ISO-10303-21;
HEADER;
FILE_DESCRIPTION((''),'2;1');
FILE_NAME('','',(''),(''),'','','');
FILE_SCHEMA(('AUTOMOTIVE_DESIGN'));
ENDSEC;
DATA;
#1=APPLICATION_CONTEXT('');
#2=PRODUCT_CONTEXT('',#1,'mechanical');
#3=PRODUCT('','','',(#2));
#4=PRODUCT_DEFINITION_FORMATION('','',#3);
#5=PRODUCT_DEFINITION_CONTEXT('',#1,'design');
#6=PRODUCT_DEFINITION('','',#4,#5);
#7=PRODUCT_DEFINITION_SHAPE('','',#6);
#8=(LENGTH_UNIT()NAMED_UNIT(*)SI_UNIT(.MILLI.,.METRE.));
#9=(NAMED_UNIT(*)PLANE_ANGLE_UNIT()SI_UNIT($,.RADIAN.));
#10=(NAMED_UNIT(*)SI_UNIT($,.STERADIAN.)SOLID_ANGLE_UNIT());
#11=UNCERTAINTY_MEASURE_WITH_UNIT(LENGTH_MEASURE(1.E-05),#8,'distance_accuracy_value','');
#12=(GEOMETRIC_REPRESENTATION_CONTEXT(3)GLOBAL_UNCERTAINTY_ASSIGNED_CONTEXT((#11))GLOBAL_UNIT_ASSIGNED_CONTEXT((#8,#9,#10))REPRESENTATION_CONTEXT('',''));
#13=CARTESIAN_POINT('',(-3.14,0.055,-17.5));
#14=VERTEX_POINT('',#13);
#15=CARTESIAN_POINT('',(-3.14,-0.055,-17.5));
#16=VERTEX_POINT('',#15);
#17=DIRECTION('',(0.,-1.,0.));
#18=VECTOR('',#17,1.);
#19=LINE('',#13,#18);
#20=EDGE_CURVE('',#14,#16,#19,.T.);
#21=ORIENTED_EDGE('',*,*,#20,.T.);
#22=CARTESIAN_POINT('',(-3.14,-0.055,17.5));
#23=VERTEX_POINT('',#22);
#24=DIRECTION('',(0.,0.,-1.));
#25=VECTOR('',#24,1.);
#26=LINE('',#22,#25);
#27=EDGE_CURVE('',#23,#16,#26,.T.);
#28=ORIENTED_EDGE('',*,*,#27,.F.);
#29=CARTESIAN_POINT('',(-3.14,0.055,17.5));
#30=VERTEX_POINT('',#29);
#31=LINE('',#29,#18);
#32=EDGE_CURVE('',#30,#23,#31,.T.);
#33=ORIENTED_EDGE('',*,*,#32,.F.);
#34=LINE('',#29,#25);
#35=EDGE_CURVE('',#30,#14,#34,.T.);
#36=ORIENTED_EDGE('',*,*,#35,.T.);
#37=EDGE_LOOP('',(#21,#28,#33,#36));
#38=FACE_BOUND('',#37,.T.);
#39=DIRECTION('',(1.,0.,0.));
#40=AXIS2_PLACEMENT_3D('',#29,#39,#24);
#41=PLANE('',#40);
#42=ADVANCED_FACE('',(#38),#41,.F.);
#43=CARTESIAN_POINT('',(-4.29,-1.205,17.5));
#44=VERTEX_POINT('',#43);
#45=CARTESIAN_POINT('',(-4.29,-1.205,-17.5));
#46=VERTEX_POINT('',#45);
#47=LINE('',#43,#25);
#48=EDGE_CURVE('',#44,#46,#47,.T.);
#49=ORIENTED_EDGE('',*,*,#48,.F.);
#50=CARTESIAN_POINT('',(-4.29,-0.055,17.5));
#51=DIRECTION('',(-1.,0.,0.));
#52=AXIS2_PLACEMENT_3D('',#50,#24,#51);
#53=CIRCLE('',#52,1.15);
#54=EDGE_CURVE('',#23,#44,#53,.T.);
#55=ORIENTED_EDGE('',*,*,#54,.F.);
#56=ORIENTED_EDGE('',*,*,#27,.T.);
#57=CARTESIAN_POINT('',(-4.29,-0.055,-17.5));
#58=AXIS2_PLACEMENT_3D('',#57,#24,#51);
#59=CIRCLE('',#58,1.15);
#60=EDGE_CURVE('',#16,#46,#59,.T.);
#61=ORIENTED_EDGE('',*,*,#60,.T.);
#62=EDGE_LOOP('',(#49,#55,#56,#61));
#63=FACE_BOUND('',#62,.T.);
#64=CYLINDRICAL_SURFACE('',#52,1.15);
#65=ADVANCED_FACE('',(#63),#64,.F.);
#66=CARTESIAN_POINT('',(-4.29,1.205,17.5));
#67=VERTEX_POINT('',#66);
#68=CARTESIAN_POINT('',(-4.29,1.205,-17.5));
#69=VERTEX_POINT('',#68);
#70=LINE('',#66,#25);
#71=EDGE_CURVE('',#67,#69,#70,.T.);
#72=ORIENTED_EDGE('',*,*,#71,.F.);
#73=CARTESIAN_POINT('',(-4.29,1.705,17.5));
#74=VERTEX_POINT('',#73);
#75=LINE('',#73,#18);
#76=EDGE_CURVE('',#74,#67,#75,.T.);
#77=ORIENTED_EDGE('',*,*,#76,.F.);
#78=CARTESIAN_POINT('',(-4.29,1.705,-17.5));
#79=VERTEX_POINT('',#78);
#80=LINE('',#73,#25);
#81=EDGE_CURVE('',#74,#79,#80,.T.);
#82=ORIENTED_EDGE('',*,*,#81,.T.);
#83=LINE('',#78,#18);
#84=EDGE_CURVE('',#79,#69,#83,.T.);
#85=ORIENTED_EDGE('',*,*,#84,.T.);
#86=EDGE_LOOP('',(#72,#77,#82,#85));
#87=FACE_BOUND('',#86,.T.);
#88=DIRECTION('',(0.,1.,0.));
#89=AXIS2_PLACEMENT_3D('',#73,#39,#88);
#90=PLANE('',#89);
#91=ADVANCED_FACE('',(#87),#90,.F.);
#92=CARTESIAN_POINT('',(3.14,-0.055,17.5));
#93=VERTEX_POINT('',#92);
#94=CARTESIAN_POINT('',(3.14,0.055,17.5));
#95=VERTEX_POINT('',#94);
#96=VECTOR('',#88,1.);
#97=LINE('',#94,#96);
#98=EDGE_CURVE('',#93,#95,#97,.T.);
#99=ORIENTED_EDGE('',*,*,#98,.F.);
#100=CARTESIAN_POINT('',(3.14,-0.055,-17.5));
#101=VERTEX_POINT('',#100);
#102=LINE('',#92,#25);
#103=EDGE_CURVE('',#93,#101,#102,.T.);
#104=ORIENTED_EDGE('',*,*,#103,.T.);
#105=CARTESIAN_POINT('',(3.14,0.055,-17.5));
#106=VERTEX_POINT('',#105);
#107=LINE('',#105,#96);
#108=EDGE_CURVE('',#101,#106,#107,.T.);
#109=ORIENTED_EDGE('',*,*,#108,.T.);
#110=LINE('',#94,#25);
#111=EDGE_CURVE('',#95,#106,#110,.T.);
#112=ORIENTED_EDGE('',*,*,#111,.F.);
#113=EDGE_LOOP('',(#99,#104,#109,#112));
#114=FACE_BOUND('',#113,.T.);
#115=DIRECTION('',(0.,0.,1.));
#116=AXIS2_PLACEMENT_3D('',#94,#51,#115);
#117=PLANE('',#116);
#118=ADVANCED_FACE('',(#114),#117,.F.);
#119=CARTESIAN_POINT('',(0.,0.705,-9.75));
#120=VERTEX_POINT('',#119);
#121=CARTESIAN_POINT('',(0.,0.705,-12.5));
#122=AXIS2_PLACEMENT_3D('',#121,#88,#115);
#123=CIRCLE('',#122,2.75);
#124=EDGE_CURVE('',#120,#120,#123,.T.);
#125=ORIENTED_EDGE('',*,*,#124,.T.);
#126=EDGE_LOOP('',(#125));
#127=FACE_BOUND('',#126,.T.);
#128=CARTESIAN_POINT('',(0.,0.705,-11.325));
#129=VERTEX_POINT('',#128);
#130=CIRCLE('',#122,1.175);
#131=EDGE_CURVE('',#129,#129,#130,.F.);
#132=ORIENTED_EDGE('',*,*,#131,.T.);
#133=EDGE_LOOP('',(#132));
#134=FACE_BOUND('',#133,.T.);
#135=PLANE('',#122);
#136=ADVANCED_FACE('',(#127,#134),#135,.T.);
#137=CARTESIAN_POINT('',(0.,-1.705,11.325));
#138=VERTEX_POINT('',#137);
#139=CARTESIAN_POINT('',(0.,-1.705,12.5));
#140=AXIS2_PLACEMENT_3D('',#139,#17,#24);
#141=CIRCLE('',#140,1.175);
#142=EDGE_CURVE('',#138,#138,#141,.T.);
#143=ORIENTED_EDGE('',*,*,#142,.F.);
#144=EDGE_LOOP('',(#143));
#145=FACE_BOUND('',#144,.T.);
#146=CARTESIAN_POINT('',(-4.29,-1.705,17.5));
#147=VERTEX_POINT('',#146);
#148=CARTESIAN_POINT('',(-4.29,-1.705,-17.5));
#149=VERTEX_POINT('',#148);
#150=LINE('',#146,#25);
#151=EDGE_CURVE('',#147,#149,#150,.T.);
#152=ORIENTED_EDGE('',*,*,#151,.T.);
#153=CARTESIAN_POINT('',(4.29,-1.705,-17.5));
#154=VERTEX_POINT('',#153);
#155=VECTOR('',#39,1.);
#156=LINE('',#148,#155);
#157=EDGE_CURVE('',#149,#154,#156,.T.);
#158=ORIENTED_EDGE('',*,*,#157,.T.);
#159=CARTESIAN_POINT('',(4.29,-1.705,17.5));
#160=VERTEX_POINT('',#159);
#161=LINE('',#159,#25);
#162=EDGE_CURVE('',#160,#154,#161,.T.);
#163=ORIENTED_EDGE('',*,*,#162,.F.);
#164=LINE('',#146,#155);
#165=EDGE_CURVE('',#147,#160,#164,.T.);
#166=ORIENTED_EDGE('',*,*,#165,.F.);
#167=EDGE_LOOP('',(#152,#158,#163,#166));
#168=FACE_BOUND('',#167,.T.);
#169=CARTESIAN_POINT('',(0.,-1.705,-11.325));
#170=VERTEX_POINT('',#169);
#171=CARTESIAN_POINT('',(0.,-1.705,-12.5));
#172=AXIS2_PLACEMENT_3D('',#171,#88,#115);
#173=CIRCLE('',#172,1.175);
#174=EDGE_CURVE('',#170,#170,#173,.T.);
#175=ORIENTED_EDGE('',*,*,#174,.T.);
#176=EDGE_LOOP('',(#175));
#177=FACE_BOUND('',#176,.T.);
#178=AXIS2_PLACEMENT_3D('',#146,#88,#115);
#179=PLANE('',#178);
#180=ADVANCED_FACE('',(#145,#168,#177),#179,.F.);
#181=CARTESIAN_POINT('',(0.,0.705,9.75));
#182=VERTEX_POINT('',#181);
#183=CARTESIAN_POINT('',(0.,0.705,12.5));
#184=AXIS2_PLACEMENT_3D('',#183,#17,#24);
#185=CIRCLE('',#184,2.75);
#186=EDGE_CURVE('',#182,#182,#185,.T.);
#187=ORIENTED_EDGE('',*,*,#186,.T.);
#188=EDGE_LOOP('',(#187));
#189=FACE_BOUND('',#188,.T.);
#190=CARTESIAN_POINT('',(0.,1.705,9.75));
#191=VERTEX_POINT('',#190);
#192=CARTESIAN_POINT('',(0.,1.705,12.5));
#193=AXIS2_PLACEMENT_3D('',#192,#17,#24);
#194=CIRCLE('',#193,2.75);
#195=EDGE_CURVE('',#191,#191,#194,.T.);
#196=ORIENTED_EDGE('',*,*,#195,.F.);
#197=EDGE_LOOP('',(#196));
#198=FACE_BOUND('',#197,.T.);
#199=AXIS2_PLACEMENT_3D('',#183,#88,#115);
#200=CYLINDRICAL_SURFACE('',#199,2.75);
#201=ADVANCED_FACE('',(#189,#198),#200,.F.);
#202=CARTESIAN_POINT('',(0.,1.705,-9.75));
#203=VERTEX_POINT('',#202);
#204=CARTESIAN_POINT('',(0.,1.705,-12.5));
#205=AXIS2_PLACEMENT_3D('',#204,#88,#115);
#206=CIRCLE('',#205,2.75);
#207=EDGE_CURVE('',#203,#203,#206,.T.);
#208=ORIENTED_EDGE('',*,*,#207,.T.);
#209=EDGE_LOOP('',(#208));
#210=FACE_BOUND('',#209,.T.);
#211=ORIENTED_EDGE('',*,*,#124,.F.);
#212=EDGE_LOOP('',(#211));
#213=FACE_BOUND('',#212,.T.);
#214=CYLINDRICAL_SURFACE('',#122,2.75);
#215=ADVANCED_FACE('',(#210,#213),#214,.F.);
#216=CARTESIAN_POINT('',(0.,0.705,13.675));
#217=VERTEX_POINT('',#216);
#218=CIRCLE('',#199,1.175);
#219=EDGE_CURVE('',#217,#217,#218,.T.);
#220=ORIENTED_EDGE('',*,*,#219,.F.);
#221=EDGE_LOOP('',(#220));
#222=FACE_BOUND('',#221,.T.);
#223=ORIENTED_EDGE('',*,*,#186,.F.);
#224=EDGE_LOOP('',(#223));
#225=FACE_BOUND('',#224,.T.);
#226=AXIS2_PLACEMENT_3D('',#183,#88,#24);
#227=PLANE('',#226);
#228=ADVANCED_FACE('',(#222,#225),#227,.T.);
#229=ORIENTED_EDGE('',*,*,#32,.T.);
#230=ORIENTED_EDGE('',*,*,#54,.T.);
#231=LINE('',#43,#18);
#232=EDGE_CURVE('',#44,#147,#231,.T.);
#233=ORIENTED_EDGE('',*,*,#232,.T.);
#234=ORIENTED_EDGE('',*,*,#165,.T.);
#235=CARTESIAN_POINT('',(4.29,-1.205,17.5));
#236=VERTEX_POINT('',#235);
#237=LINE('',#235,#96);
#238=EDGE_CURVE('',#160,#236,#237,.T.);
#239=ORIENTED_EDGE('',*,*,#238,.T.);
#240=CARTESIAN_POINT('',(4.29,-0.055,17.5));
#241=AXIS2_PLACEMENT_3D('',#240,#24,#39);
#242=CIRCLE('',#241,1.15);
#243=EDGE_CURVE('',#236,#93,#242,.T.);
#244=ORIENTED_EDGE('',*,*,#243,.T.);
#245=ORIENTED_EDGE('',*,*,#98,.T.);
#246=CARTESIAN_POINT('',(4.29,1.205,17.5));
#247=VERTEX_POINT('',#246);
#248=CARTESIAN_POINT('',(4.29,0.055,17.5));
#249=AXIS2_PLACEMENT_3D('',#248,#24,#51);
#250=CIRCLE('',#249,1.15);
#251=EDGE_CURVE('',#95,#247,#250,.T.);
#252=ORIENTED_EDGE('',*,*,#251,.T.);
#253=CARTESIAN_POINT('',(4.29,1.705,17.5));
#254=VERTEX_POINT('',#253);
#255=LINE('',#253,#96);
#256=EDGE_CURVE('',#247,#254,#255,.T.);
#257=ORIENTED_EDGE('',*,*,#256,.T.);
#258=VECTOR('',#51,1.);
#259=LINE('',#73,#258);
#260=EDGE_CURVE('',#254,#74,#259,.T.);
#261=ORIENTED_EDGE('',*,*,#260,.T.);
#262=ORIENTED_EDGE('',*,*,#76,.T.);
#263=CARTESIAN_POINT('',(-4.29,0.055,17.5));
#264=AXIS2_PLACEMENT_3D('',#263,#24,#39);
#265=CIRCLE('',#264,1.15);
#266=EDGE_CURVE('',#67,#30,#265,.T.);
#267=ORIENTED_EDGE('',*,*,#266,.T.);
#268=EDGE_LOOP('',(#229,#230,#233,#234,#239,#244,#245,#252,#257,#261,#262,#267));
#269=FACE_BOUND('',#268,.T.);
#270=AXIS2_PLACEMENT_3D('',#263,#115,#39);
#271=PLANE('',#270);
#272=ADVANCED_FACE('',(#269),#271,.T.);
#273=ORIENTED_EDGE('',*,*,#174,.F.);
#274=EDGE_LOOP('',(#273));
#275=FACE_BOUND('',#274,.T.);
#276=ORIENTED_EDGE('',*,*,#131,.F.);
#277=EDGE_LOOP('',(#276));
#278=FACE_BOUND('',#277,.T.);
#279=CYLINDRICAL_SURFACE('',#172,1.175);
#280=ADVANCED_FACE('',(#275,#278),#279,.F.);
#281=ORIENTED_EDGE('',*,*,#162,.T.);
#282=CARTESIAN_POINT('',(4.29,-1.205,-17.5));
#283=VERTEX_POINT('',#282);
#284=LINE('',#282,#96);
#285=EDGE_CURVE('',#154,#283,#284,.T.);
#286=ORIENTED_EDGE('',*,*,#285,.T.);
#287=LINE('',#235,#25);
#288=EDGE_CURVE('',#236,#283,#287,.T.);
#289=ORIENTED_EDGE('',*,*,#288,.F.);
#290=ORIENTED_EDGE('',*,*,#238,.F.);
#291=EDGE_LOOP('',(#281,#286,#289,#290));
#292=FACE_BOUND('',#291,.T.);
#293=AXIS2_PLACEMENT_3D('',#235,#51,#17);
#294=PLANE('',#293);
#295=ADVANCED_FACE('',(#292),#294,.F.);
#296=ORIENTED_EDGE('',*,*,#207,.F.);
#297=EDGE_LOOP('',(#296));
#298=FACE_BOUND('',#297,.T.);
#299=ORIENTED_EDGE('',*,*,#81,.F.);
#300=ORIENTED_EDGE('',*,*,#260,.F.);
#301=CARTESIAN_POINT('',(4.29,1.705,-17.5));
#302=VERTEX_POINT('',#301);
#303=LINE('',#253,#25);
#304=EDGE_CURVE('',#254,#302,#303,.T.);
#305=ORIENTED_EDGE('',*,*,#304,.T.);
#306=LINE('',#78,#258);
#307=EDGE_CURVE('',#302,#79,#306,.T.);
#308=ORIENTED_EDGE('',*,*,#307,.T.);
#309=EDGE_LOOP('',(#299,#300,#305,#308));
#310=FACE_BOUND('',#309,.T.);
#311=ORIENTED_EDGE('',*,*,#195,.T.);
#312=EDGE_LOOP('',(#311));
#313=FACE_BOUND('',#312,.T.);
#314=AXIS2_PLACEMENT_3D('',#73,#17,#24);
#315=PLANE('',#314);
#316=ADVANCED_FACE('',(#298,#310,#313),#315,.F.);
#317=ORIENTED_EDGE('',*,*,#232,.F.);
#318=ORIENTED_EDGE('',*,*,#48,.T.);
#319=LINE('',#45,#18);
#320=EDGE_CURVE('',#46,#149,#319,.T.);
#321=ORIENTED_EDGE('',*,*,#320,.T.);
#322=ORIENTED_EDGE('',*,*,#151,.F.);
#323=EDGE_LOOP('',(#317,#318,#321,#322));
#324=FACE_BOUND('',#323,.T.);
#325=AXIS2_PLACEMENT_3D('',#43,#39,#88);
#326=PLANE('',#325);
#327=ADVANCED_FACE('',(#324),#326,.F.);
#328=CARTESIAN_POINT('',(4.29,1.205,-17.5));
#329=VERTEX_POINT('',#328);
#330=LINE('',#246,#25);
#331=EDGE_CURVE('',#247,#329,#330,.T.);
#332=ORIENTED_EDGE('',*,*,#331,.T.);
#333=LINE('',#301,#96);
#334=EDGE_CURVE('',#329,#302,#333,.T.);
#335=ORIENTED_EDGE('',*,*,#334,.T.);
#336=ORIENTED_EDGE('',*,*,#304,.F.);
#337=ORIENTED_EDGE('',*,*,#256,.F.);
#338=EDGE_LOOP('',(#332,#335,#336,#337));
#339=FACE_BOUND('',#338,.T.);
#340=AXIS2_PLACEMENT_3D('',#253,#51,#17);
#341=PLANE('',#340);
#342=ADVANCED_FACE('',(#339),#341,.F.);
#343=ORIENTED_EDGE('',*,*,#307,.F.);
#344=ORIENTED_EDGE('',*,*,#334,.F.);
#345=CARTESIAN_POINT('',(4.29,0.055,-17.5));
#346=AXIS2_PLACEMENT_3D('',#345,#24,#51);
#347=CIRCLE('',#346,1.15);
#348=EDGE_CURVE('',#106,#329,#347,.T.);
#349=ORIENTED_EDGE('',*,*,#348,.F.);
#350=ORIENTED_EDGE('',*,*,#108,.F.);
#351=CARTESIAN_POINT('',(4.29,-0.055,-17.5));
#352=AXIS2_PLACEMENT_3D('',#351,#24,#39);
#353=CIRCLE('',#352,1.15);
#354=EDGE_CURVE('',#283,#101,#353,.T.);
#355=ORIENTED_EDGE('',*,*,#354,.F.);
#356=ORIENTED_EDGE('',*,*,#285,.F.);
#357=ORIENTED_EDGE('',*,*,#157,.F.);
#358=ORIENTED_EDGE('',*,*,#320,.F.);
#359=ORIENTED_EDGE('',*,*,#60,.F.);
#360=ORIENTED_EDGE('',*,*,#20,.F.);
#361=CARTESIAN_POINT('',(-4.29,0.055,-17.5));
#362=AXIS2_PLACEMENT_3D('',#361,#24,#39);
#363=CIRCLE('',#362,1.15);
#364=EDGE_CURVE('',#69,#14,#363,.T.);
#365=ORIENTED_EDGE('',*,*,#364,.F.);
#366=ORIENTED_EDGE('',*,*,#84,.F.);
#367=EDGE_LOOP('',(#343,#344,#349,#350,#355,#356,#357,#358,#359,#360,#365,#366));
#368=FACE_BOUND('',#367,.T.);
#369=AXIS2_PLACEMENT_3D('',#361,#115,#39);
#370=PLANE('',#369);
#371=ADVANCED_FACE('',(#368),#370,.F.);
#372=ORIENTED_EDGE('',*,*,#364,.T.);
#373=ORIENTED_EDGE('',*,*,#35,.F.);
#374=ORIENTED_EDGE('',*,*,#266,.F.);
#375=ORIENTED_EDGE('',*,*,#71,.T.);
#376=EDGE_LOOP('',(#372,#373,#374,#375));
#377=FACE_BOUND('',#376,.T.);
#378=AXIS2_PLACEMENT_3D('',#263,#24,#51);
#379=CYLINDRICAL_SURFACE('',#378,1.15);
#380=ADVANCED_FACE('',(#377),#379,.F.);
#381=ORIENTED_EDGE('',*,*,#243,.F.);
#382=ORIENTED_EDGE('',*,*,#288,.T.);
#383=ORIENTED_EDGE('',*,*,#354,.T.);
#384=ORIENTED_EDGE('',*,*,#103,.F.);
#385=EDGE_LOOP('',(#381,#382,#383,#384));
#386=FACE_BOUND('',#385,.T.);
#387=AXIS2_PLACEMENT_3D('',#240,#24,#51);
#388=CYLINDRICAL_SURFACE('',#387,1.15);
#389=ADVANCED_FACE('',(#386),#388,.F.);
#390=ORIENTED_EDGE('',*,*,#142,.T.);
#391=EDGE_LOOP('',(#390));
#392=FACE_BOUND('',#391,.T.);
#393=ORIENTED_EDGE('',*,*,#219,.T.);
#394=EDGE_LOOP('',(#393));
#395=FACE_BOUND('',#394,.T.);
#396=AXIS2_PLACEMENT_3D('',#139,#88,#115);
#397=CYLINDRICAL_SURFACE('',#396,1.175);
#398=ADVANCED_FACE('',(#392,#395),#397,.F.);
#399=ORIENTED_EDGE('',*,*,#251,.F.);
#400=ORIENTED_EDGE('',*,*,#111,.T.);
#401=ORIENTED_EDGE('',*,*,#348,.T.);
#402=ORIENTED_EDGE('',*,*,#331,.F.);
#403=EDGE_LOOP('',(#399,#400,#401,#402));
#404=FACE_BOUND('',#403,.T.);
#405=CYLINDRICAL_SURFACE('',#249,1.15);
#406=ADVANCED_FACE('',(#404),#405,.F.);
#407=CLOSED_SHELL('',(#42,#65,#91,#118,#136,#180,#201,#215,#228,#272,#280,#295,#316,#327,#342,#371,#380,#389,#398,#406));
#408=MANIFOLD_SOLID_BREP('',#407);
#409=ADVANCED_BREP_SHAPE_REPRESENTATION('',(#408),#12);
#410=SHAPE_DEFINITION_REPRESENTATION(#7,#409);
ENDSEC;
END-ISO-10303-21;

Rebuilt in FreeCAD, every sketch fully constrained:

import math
import FreeCAD as App
import Part
import Sketcher

doc = App.newDocument("Part")
params = doc.addObject("Spreadsheet::Sheet", "Params")
for row, (alias, value) in enumerate([
    ("sketch1_radius", "1.15 mm"),
    ("sketch1_height", "0.5 mm"),
    ("sketch1_width", "8.58 mm"),
    ("sketch1_height2", "0.11 mm"),
    ("pad1_length", "35 mm"),
    ("sketch2_diameter", "2.35 mm"),
    ("sketch3_diameter", "5.5 mm"),
    ("pocket2_length", "1 mm"),
], start=1):
    params.set(f"A{row}", alias)
    params.set(f"B{row}", "=" + value)
    params.setAlias(f"B{row}", alias)

body = doc.addObject("PartDesign::Body", "Body")

sketch1 = body.newObject("Sketcher::SketchObject", "Sketch")
sketch1.AttachmentSupport = (doc.getObject("XY_Plane"), [""])
sketch1.MapMode = "FlatFace"
sketch1.addGeometry(Part.LineSegment(App.Vector(-3.14, 0.06, 0), App.Vector(-3.14, -0.06, 0)), False)
sketch1.addGeometry(Part.ArcOfCircle(Part.Circle(App.Vector(-4.29, -0.05, 0), App.Vector(0, 0, 1), 1.15), math.radians(-90), math.radians(0)), False)
sketch1.addGeometry(Part.LineSegment(App.Vector(-4.29, -1.21, 0), App.Vector(-4.29, -1.71, 0)), False)
sketch1.addGeometry(Part.LineSegment(App.Vector(-4.29, -1.71, 0), App.Vector(4.29, -1.71, 0)), False)
sketch1.addGeometry(Part.LineSegment(App.Vector(4.29, -1.71, 0), App.Vector(4.29, -1.21, 0)), False)
sketch1.addGeometry(Part.ArcOfCircle(Part.Circle(App.Vector(4.29, -0.05, 0), App.Vector(0, 0, 1), 1.15), math.radians(-180), math.radians(-90)), False)
sketch1.addGeometry(Part.LineSegment(App.Vector(3.14, -0.06, 0), App.Vector(3.14, 0.06, 0)), False)
sketch1.addGeometry(Part.ArcOfCircle(Part.Circle(App.Vector(4.29, 0.05, 0), App.Vector(0, 0, 1), 1.15), math.radians(90), math.radians(180)), False)
sketch1.addGeometry(Part.LineSegment(App.Vector(4.29, 1.21, 0), App.Vector(4.29, 1.71, 0)), False)
sketch1.addGeometry(Part.LineSegment(App.Vector(4.29, 1.71, 0), App.Vector(-4.29, 1.71, 0)), False)
sketch1.addGeometry(Part.LineSegment(App.Vector(-4.29, 1.71, 0), App.Vector(-4.29, 1.21, 0)), False)
sketch1.addGeometry(Part.ArcOfCircle(Part.Circle(App.Vector(-4.29, 0.05, 0), App.Vector(0, 0, 1), 1.15), math.radians(0), math.radians(90)), False)
sketch1.addConstraint(Sketcher.Constraint("Tangent", 0, 2, 1, 2))
sketch1.addConstraint(Sketcher.Constraint("Coincident", 1, 1, 2, 1))
sketch1.addConstraint(Sketcher.Constraint("Coincident", 2, 2, 3, 1))
sketch1.addConstraint(Sketcher.Constraint("Coincident", 3, 2, 4, 1))
sketch1.addConstraint(Sketcher.Constraint("Coincident", 4, 2, 5, 2))
sketch1.addConstraint(Sketcher.Constraint("Tangent", 5, 1, 6, 1))
sketch1.addConstraint(Sketcher.Constraint("Tangent", 6, 2, 7, 2))
sketch1.addConstraint(Sketcher.Constraint("Coincident", 7, 1, 8, 1))
sketch1.addConstraint(Sketcher.Constraint("Coincident", 8, 2, 9, 1))
sketch1.addConstraint(Sketcher.Constraint("Coincident", 9, 2, 10, 1))
sketch1.addConstraint(Sketcher.Constraint("Coincident", 10, 2, 11, 2))
sketch1.addConstraint(Sketcher.Constraint("Tangent", 11, 1, 0, 1))
sketch1.addConstraint(Sketcher.Constraint("Vertical", 0))
sketch1.addConstraint(Sketcher.Constraint("Vertical", 2))
sketch1.addConstraint(Sketcher.Constraint("Horizontal", 3))
sketch1.addConstraint(Sketcher.Constraint("Vertical", 4))
sketch1.addConstraint(Sketcher.Constraint("Vertical", 6))
sketch1.addConstraint(Sketcher.Constraint("Vertical", 8))
sketch1.addConstraint(Sketcher.Constraint("Horizontal", 9))
sketch1.addConstraint(Sketcher.Constraint("Vertical", 10))
sketch1.addConstraint(Sketcher.Constraint("Equal", 1, 5))
sketch1.addConstraint(Sketcher.Constraint("Equal", 5, 7))
sketch1.addConstraint(Sketcher.Constraint("Equal", 7, 11))
sketch1.addConstraint(Sketcher.Constraint("Symmetric", 1, 3, 7, 3, -1, 1))
sketch1.addConstraint(Sketcher.Constraint("Symmetric", 2, 2, 8, 2, -1, 1))
sketch1.addConstraint(Sketcher.Constraint("Symmetric", 4, 2, 10, 2, -1, 1))
sketch1.addConstraint(Sketcher.Constraint("Symmetric", 1, 1, 4, 2, -2))
sketch1.addConstraint(Sketcher.Constraint("Vertical", 11, 3, 1, 1))
sketch1.addConstraint(Sketcher.Constraint("Radius", 1, 1.15))
sketch1.addConstraint(Sketcher.Constraint("DistanceY", 2, 2, 2, 1, 0.5))
sketch1.addConstraint(Sketcher.Constraint("DistanceX", 3, 1, 3, 2, 8.58))
sketch1.addConstraint(Sketcher.Constraint("DistanceY", 0, 2, 0, 1, 0.11))
sketch1.setExpression("Constraints[28]", "Params.sketch1_radius")
sketch1.setExpression("Constraints[29]", "Params.sketch1_height")
sketch1.setExpression("Constraints[30]", "Params.sketch1_width")
sketch1.setExpression("Constraints[31]", "Params.sketch1_height2")
pad1 = body.newObject("PartDesign::Pad", "Pad")
pad1.Profile = sketch1
pad1.setExpression("Length", "Params.pad1_length")
pad1.Midplane = True

sketch2 = body.newObject("Sketcher::SketchObject", "Sketch001")
sketch2.AttachmentSupport = (doc.getObject("XZ_Plane"), [""])
sketch2.MapMode = "FlatFace"
sketch2.AttachmentOffset = App.Placement(App.Vector(0, 0, -1.705), App.Rotation())
sketch2.addGeometry(Part.Circle(App.Vector(0, -12.5, 0), App.Vector(0, 0, 1), 1.2), False)
sketch2.addConstraint(Sketcher.Constraint("PointOnObject", 0, 3, -2))
sketch2.addConstraint(Sketcher.Constraint("Diameter", 0, 2.35))
sketch2.addConstraint(Sketcher.Constraint("DistanceY", 0, 3, -1, 1, 12.5))
sketch2.setExpression("Constraints[1]", "Params.sketch2_diameter")
pocket1 = body.newObject("PartDesign::Pocket", "Pocket")
pocket1.Profile = sketch2
pocket1.Type = "ThroughAll"
pocket1.Reversed = True

sketch3 = body.newObject("Sketcher::SketchObject", "Sketch002")
sketch3.AttachmentSupport = (doc.getObject("XZ_Plane"), [""])
sketch3.MapMode = "FlatFace"
sketch3.AttachmentOffset = App.Placement(App.Vector(0, 0, -1.705), App.Rotation())
sketch3.addGeometry(Part.Circle(App.Vector(0, -12.5, 0), App.Vector(0, 0, 1), 2.8), False)
sketch3.addConstraint(Sketcher.Constraint("PointOnObject", 0, 3, -2))
sketch3.addConstraint(Sketcher.Constraint("Diameter", 0, 5.5))
sketch3.addConstraint(Sketcher.Constraint("DistanceY", 0, 3, -1, 1, 12.5))
sketch3.setExpression("Constraints[1]", "Params.sketch3_diameter")
pocket2 = body.newObject("PartDesign::Pocket", "Pocket001")
pocket2.Profile = sketch3
pocket2.setExpression("Length", "Params.pocket2_length")
pocket2.Reversed = True
doc.recompute()

mirrored = body.newObject("PartDesign::Mirrored", "Mirrored")
mirrored.Originals = [pocket1, pocket2]
mirrored.MirrorPlane = (doc.getObject("XY_Plane"), [""])
body.Tip = mirrored

doc.recompute()
